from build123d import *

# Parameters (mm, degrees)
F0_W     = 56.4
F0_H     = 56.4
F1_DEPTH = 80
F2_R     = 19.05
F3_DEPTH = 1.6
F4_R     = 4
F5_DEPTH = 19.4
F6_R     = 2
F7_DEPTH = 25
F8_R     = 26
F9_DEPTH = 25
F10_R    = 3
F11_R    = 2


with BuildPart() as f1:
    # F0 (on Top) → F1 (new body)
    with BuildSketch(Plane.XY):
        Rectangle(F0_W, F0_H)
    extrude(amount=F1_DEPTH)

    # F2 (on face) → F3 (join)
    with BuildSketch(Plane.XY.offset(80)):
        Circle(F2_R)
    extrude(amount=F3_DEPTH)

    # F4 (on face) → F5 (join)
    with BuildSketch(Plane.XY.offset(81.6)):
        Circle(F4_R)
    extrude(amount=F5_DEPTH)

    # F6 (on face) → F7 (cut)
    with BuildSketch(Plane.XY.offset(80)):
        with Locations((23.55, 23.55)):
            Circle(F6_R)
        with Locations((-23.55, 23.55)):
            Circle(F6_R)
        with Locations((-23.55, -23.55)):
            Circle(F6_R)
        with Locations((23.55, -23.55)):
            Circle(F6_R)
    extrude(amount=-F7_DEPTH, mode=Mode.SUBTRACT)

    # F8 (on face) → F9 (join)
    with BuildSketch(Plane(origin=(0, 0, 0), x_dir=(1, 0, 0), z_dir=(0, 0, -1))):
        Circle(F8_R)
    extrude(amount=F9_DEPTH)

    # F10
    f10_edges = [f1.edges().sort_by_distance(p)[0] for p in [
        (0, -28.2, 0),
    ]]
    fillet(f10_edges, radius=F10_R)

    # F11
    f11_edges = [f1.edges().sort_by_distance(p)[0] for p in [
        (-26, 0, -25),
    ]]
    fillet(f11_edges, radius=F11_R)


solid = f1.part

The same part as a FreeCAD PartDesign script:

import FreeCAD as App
import Part
import Sketcher


def edges_at(feature, points):
    """Names of the edges that pass closest to the given points."""
    edges = feature.Shape.Edges
    near = lambda p: min(range(len(edges)), key=lambda i: edges[i].distToShape(Part.Vertex(*p))[0])
    return sorted({f"Edge{near(p) + 1}" for p in points})


def add_polygon(sketch, points):
    """Adds a closed chain of lines whose ends are joined by coincident constraints."""
    first, n = sketch.GeometryCount, len(points)
    for a, b in zip(points, points[1:] + points[:1]):
        sketch.addGeometry(Part.LineSegment(App.Vector(*a, 0), App.Vector(*b, 0)), False)
    for i in range(n):
        sketch.addConstraint(Sketcher.Constraint("Coincident", first + i, 2, first + (i + 1) % n, 1))

doc = App.newDocument("Part")
params = doc.addObject("Spreadsheet::Sheet", "Params")
for row, (alias, value) in enumerate([
    ("sketch1_width", "56.4 mm"),
    ("pad1_length", "80 mm"),
    ("sketch2_diameter", "38.1 mm"),
    ("pad2_length", "1.6 mm"),
    ("sketch3_diameter", "8 mm"),
    ("pad3_length", "19.4 mm"),
    ("sketch4_diameter", "4 mm"),
    ("pocket1_length", "25 mm"),
    ("sketch5_diameter", "52 mm"),
    ("pad4_length", "25 mm"),
    ("fillet_radius", "3 mm"),
    ("fillet2_radius", "2 mm"),
], start=1):
    params.set(f"A{row}", alias)
    params.set(f"B{row}", "=" + value)
    params.setAlias(f"B{row}", alias)

body = doc.addObject("PartDesign::Body", "Body")

# Sketch on XY plane
sketch1 = body.newObject("Sketcher::SketchObject", "Sketch")
sketch1.AttachmentSupport = (doc.getObject("XY_Plane"), [""])
sketch1.MapMode = "FlatFace"
add_polygon(sketch1, [(-28.2, 28.2), (-28.2, -28.2), (28.2, -28.2), (28.2, 28.2)])  # lines 0-3
sketch1.addConstraint([
    Sketcher.Constraint("Vertical", 0),
    Sketcher.Constraint("Horizontal", 1),
    Sketcher.Constraint("Vertical", 2),
    Sketcher.Constraint("Horizontal", 3),
    Sketcher.Constraint("Symmetric", 0, 2, 2, 2, -1, 1),
    Sketcher.Constraint("Equal", 3, 0),
    Sketcher.Constraint("DistanceX", 1, 1, 1, 2, 56.4),
])
sketch1.setExpression("Constraints[10]", "Params.sketch1_width")
pad1 = body.newObject("PartDesign::Pad", "Pad")
pad1.Profile = sketch1
pad1.setExpression("Length", "Params.pad1_length")

# Sketch on XY plane
sketch2 = body.newObject("Sketcher::SketchObject", "Sketch001")
sketch2.AttachmentSupport = (doc.getObject("XY_Plane"), [""])
sketch2.MapMode = "FlatFace"
sketch2.AttachmentOffset = App.Placement(App.Vector(0, 0, 80), App.Rotation())
sketch2.addGeometry(Part.Circle(App.Vector(0, 0, 0), App.Vector(0, 0, 1), 19.05), False)
sketch2.addConstraint([
    Sketcher.Constraint("Coincident", 0, 3, -1, 1),
    Sketcher.Constraint("Diameter", 0, 38.1),
])
sketch2.setExpression("Constraints[1]", "Params.sketch2_diameter")
pad2 = body.newObject("PartDesign::Pad", "Pad001")
pad2.Profile = sketch2
pad2.setExpression("Length", "Params.pad2_length")

# Sketch on XY plane
sketch3 = body.newObject("Sketcher::SketchObject", "Sketch002")
sketch3.AttachmentSupport = (doc.getObject("XY_Plane"), [""])
sketch3.MapMode = "FlatFace"
sketch3.AttachmentOffset = App.Placement(App.Vector(0, 0, 81.6), App.Rotation())
sketch3.addGeometry(Part.Circle(App.Vector(0, 0, 0), App.Vector(0, 0, 1), 4), False)
sketch3.addConstraint([
    Sketcher.Constraint("Coincident", 0, 3, -1, 1),
    Sketcher.Constraint("Diameter", 0, 8.0),
])
sketch3.setExpression("Constraints[1]", "Params.sketch3_diameter")
pad3 = body.newObject("PartDesign::Pad", "Pad002")
pad3.Profile = sketch3
pad3.setExpression("Length", "Params.pad3_length")

# Sketch on XY plane
sketch4 = body.newObject("Sketcher::SketchObject", "Sketch003")
sketch4.AttachmentSupport = (doc.getObject("XY_Plane"), [""])
sketch4.MapMode = "FlatFace"
sketch4.AttachmentOffset = App.Placement(App.Vector(0, 0, 80), App.Rotation())
sketch4.addGeometry([
    Part.Circle(App.Vector(23.55, 23.55, 0), App.Vector(0, 0, 1), 2),
    Part.Circle(App.Vector(-23.55, 23.55, 0), App.Vector(0, 0, 1), 2),
    Part.Circle(App.Vector(-23.55, -23.55, 0), App.Vector(0, 0, 1), 2),
    Part.Circle(App.Vector(23.55, -23.55, 0), App.Vector(0, 0, 1), 2),
], False)
sketch4.addConstraint([
    Sketcher.Constraint("Equal", 0, 1),
    Sketcher.Constraint("Equal", 1, 2),
    Sketcher.Constraint("Equal", 2, 3),
    Sketcher.Constraint("Symmetric", 0, 3, 2, 3, -1, 1),
    Sketcher.Constraint("Symmetric", 1, 3, 3, 3, -1, 1),
    Sketcher.Constraint("Symmetric", 0, 3, 1, 3, -2),
    Sketcher.Constraint("Diameter", 0, 4.0),
    Sketcher.Constraint("DistanceX", 1, 3, 0, 3, 47.1),
    Sketcher.Constraint("DistanceY", 2, 3, 1, 3, 47.1),
])
sketch4.setExpression("Constraints[6]", "Params.sketch4_diameter")
pocket1 = body.newObject("PartDesign::Pocket", "Pocket")
pocket1.Profile = sketch4
pocket1.setExpression("Length", "Params.pocket1_length")

# Sketch on XY plane
sketch5 = body.newObject("Sketcher::SketchObject", "Sketch004")
sketch5.AttachmentSupport = (doc.getObject("XY_Plane"), [""])
sketch5.MapMode = "FlatFace"
sketch5.addGeometry(Part.Circle(App.Vector(0, 0, 0), App.Vector(0, 0, 1), 26), False)
sketch5.addConstraint([
    Sketcher.Constraint("Coincident", 0, 3, -1, 1),
    Sketcher.Constraint("Diameter", 0, 52.0),
])
sketch5.setExpression("Constraints[1]", "Params.sketch5_diameter")
pad4 = body.newObject("PartDesign::Pad", "Pad003")
pad4.Profile = sketch5
pad4.setExpression("Length", "Params.pad4_length")
pad4.Reversed = True
doc.recompute()

fillet = body.newObject("PartDesign::Fillet", "Fillet")
fillet.Base = (pad4, edges_at(pad4, [(0, -28.2, 0)]))
fillet.setExpression("Radius", "Params.fillet_radius")
doc.recompute()

fillet2 = body.newObject("PartDesign::Fillet", "Fillet001")
fillet2.Base = (fillet, edges_at(fillet, [(-26, 0, -25)]))
fillet2.setExpression("Radius", "Params.fillet2_radius")

doc.recompute()
